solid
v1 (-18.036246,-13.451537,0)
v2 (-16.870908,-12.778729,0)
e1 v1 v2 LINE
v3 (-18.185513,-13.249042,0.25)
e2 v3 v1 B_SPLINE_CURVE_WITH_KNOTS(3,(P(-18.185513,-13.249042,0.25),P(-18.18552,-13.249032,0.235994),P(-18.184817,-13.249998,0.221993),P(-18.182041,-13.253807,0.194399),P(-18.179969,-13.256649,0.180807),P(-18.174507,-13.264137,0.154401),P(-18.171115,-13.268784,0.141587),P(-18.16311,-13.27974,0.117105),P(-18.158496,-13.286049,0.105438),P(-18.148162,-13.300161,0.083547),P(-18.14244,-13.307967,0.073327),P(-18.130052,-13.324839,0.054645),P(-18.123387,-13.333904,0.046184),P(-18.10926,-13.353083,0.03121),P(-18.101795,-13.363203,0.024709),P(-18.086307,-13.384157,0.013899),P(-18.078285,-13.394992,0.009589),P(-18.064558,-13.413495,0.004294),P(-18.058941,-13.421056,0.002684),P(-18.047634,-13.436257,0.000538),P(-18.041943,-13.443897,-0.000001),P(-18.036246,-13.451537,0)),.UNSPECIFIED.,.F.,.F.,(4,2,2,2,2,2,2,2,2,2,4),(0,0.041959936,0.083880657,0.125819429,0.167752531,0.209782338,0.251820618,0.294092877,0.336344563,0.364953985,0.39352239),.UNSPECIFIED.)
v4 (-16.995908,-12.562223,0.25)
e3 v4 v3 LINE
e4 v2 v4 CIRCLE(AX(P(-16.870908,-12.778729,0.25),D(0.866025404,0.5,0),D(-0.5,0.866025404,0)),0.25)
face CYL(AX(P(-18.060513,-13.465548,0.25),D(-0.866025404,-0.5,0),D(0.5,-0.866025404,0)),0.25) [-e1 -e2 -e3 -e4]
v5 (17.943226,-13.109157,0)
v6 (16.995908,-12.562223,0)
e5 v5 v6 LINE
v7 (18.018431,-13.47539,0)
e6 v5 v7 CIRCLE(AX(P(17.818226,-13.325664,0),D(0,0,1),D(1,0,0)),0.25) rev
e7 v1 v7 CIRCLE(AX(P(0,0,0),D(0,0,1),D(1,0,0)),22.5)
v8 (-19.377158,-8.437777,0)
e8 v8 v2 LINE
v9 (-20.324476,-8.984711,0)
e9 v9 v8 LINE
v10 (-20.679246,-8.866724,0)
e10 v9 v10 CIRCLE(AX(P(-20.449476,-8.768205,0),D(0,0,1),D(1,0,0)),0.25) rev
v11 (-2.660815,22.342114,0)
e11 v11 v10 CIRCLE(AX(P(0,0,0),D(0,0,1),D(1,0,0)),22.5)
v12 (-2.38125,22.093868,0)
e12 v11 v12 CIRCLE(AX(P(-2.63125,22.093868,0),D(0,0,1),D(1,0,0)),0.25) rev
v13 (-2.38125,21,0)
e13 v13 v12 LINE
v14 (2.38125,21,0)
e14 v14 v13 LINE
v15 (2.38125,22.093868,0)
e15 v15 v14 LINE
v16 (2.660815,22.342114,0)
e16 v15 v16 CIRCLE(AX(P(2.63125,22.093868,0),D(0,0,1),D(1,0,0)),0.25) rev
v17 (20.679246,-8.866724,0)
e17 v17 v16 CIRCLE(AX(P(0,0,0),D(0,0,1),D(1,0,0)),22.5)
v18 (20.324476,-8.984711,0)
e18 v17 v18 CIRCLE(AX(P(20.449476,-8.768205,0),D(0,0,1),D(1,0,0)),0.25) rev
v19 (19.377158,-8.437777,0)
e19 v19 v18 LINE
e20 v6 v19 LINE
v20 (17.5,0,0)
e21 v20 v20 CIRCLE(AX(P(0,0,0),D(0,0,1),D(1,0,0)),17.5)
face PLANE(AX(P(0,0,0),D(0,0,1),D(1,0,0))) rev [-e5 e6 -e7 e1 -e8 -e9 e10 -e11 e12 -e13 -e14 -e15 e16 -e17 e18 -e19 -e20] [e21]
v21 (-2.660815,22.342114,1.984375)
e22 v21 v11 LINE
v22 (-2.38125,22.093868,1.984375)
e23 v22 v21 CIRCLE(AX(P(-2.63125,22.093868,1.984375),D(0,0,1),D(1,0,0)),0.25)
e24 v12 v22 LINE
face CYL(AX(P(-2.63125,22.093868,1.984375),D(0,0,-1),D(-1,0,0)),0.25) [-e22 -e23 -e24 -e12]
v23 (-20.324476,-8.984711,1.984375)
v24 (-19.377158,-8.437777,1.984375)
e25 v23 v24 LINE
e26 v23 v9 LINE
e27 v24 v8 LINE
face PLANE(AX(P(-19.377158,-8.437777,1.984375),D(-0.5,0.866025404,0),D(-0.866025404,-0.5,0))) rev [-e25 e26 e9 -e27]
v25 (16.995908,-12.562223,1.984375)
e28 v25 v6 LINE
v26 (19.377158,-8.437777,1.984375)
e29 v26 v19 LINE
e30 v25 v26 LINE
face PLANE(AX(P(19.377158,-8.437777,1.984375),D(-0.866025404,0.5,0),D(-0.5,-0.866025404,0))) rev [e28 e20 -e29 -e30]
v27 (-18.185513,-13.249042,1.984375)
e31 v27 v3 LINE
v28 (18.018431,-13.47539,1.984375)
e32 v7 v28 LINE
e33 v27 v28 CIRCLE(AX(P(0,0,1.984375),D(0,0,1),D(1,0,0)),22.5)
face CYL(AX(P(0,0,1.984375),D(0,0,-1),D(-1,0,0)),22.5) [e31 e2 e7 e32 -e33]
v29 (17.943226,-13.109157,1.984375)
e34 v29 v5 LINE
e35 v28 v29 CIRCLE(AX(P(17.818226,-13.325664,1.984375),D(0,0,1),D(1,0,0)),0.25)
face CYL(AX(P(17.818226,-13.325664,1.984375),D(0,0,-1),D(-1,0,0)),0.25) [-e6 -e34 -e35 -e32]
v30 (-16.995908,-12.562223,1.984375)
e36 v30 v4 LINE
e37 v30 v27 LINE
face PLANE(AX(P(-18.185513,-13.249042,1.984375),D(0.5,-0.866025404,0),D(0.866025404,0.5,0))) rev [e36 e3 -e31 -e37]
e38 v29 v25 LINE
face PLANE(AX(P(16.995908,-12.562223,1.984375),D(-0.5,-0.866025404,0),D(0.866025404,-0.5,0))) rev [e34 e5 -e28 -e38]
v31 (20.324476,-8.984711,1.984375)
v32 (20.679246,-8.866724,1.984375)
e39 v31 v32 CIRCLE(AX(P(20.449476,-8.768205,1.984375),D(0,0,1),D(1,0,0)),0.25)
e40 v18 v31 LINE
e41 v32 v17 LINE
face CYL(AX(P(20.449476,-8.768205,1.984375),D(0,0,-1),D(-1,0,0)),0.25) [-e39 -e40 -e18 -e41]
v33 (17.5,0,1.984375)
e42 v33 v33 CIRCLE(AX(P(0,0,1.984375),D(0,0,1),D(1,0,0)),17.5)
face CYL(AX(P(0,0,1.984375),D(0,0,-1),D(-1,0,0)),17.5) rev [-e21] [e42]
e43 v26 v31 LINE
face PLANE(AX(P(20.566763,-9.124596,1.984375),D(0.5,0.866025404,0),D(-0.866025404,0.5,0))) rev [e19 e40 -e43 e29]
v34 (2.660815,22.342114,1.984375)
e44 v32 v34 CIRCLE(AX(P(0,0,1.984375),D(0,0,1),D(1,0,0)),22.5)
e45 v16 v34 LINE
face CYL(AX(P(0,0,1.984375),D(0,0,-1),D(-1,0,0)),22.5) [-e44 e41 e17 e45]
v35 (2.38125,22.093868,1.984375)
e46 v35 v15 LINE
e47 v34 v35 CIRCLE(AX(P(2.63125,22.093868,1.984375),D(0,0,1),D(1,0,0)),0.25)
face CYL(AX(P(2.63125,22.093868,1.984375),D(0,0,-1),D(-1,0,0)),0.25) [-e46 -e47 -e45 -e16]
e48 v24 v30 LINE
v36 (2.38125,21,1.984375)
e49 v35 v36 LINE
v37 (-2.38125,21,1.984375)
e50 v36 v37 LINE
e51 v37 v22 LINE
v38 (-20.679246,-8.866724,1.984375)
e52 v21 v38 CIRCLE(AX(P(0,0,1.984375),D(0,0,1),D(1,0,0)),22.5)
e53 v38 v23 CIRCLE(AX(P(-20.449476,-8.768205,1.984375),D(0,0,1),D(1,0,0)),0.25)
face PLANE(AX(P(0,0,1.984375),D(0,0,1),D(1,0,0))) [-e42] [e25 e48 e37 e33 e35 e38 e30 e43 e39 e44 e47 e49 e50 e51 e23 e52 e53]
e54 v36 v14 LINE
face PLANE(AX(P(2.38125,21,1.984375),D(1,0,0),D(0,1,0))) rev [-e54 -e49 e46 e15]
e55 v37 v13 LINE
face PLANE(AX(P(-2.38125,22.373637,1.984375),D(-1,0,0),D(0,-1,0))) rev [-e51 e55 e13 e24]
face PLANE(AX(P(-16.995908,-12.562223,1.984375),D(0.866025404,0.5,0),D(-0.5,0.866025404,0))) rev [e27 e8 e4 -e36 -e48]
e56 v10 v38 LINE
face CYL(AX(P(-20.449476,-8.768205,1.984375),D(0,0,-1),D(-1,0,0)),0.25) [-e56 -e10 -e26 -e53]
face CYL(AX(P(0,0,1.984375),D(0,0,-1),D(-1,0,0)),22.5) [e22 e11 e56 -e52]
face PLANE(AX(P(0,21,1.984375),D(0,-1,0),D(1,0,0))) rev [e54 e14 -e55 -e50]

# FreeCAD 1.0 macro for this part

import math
import FreeCAD as App
import Part
import Sketcher
from FreeCAD import Vector
Q = App.Units.Quantity


def edges_at(feature, points):
    """Names of the edges that pass closest to the given points."""
    edges = feature.Shape.Edges
    near = lambda p: min(range(len(edges)), key=lambda i: edges[i].distToShape(Part.Vertex(*p))[0])
    return sorted({f"Edge{near(p) + 1}" for p in points})

doc = App.newDocument("Part")
body = doc.addObject("PartDesign::Body", "Body")

# Sketch on XY plane
sketch1 = doc.addObject("Sketcher::SketchObject", "Sketch")
body.addObject(sketch1)
sketch1.AttachmentSupport = (doc.XY_Plane, [""])
sketch1.MapMode = "FlatFace"
sketch1.addGeometry([
    Part.LineSegment(Vector(2.38125, 22.373637, 0), Vector(2.38125, 21, 0)),  # 0
    Part.LineSegment(Vector(2.38125, 21, 0), Vector(-2.38125, 21, 0)),  # 1
    Part.LineSegment(Vector(-2.38125, 21, 0), Vector(-2.38125, 22.373637, 0)),  # 2
    Part.ArcOfCircle(Part.Circle(Vector(0, 0, 0), Vector(0, 0, 1), 22.5), math.radians(96.075181), math.radians(203.924819)),  # 3
    Part.LineSegment(Vector(-20.566763, -9.124596, 0), Vector(-19.377158, -8.437777, 0)),  # 4
    Part.LineSegment(Vector(-19.377158, -8.437777, 0), Vector(-16.995908, -12.562223, 0)),  # 5
    Part.LineSegment(Vector(-16.995908, -12.562223, 0), Vector(-18.185513, -13.249042, 0)),  # 6
    Part.ArcOfCircle(Part.Circle(Vector(0, 0, 0), Vector(0, 0, 1), 22.5), math.radians(-143.924819), math.radians(-36.075181)),  # 7
    Part.LineSegment(Vector(18.185513, -13.249042, 0), Vector(16.995908, -12.562223, 0)),  # 8
    Part.LineSegment(Vector(16.995908, -12.562223, 0), Vector(19.377158, -8.437777, 0)),  # 9
    Part.LineSegment(Vector(19.377158, -8.437777, 0), Vector(20.566763, -9.124596, 0)),  # 10
    Part.ArcOfCircle(Part.Circle(Vector(0, 0, 0), Vector(0, 0, 1), 22.5), math.radians(-23.924819), math.radians(83.924819)),  # 11
    Part.Circle(Vector(0, 0, 0), Vector(0, 0, 1), 17.5),  # 12
], False)
sketch1.addConstraint([
    Sketcher.Constraint("Coincident", 0, 2, 1, 1),
    Sketcher.Constraint("Coincident", 1, 2, 2, 1),
    Sketcher.Constraint("Coincident", 2, 2, 3, 1),
    Sketcher.Constraint("Coincident", 3, 2, 4, 1),
    Sketcher.Constraint("Coincident", 4, 2, 5, 1),
    Sketcher.Constraint("Coincident", 5, 2, 6, 1),
    Sketcher.Constraint("Coincident", 6, 2, 7, 1),
    Sketcher.Constraint("Coincident", 7, 2, 8, 1),
    Sketcher.Constraint("Coincident", 8, 2, 9, 1),
    Sketcher.Constraint("Coincident", 9, 2, 10, 1),
    Sketcher.Constraint("Coincident", 10, 2, 11, 1),
    Sketcher.Constraint("Coincident", 11, 2, 0, 1),
    Sketcher.Constraint("Vertical", 0),
    Sketcher.Constraint("Horizontal", 1),
    Sketcher.Constraint("Vertical", 2),
    Sketcher.Constraint("Coincident", 3, 3, -1, 1),
    Sketcher.Constraint("Coincident", 7, 3, -1, 1),
    Sketcher.Constraint("Coincident", 11, 3, -1, 1),
    Sketcher.Constraint("Coincident", 12, 3, -1, 1),
    Sketcher.Constraint("Equal", 3, 7),
    Sketcher.Constraint("Equal", 7, 11),
    Sketcher.Constraint("Symmetric", 5, 2, 8, 2, -2),
    Sketcher.Constraint("Symmetric", 4, 2, 9, 2, -2),
    Sketcher.Constraint("Perpendicular", 4, 5),
    Sketcher.Constraint("Perpendicular", 5, 6),
    Sketcher.Constraint("Perpendicular", 8, 9),
    Sketcher.Constraint("Perpendicular", 9, 10),
    Sketcher.Constraint("Horizontal", 2, 2, 11, 2),
    Sketcher.Constraint("Equal", 4, 6),
    Sketcher.Constraint("Diameter", 12, Q("35 mm")),
    Sketcher.Constraint("Radius", 3, Q("22.5 mm")),
    Sketcher.Constraint("Angle", 4, Q("30 deg")),
    Sketcher.Constraint("DistanceY", -1, 1, 0, 2, Q("21 mm")),
    Sketcher.Constraint("DistanceX", 1, 2, 1, 1, Q("4.7625 mm")),
    Sketcher.Constraint("Distance", 5, Q("4.7625 mm")),
    Sketcher.Constraint("DistanceX", 4, 2, -1, 1, Q("19.377158 mm")),
])
pad1 = doc.addObject("PartDesign::Pad", "Pad")
body.addObject(pad1)
pad1.Profile = sketch1
pad1.Length = 1.984375
doc.recompute()

fillet = doc.addObject("PartDesign::Fillet", "Fillet")
body.addObject(fillet)
fillet.Base = (pad1, edges_at(pad1, [
    (-17.591, -12.906, 0),
    (2.381, 22.374, 0.992),
    (20.567, -9.125, 0.992),
    (18.186, -13.249, 0.992),
    (-20.567, -9.125, 0.992),
    (-2.381, 22.374, 0.992),
]))
fillet.Radius = 0.25

doc.recompute()
